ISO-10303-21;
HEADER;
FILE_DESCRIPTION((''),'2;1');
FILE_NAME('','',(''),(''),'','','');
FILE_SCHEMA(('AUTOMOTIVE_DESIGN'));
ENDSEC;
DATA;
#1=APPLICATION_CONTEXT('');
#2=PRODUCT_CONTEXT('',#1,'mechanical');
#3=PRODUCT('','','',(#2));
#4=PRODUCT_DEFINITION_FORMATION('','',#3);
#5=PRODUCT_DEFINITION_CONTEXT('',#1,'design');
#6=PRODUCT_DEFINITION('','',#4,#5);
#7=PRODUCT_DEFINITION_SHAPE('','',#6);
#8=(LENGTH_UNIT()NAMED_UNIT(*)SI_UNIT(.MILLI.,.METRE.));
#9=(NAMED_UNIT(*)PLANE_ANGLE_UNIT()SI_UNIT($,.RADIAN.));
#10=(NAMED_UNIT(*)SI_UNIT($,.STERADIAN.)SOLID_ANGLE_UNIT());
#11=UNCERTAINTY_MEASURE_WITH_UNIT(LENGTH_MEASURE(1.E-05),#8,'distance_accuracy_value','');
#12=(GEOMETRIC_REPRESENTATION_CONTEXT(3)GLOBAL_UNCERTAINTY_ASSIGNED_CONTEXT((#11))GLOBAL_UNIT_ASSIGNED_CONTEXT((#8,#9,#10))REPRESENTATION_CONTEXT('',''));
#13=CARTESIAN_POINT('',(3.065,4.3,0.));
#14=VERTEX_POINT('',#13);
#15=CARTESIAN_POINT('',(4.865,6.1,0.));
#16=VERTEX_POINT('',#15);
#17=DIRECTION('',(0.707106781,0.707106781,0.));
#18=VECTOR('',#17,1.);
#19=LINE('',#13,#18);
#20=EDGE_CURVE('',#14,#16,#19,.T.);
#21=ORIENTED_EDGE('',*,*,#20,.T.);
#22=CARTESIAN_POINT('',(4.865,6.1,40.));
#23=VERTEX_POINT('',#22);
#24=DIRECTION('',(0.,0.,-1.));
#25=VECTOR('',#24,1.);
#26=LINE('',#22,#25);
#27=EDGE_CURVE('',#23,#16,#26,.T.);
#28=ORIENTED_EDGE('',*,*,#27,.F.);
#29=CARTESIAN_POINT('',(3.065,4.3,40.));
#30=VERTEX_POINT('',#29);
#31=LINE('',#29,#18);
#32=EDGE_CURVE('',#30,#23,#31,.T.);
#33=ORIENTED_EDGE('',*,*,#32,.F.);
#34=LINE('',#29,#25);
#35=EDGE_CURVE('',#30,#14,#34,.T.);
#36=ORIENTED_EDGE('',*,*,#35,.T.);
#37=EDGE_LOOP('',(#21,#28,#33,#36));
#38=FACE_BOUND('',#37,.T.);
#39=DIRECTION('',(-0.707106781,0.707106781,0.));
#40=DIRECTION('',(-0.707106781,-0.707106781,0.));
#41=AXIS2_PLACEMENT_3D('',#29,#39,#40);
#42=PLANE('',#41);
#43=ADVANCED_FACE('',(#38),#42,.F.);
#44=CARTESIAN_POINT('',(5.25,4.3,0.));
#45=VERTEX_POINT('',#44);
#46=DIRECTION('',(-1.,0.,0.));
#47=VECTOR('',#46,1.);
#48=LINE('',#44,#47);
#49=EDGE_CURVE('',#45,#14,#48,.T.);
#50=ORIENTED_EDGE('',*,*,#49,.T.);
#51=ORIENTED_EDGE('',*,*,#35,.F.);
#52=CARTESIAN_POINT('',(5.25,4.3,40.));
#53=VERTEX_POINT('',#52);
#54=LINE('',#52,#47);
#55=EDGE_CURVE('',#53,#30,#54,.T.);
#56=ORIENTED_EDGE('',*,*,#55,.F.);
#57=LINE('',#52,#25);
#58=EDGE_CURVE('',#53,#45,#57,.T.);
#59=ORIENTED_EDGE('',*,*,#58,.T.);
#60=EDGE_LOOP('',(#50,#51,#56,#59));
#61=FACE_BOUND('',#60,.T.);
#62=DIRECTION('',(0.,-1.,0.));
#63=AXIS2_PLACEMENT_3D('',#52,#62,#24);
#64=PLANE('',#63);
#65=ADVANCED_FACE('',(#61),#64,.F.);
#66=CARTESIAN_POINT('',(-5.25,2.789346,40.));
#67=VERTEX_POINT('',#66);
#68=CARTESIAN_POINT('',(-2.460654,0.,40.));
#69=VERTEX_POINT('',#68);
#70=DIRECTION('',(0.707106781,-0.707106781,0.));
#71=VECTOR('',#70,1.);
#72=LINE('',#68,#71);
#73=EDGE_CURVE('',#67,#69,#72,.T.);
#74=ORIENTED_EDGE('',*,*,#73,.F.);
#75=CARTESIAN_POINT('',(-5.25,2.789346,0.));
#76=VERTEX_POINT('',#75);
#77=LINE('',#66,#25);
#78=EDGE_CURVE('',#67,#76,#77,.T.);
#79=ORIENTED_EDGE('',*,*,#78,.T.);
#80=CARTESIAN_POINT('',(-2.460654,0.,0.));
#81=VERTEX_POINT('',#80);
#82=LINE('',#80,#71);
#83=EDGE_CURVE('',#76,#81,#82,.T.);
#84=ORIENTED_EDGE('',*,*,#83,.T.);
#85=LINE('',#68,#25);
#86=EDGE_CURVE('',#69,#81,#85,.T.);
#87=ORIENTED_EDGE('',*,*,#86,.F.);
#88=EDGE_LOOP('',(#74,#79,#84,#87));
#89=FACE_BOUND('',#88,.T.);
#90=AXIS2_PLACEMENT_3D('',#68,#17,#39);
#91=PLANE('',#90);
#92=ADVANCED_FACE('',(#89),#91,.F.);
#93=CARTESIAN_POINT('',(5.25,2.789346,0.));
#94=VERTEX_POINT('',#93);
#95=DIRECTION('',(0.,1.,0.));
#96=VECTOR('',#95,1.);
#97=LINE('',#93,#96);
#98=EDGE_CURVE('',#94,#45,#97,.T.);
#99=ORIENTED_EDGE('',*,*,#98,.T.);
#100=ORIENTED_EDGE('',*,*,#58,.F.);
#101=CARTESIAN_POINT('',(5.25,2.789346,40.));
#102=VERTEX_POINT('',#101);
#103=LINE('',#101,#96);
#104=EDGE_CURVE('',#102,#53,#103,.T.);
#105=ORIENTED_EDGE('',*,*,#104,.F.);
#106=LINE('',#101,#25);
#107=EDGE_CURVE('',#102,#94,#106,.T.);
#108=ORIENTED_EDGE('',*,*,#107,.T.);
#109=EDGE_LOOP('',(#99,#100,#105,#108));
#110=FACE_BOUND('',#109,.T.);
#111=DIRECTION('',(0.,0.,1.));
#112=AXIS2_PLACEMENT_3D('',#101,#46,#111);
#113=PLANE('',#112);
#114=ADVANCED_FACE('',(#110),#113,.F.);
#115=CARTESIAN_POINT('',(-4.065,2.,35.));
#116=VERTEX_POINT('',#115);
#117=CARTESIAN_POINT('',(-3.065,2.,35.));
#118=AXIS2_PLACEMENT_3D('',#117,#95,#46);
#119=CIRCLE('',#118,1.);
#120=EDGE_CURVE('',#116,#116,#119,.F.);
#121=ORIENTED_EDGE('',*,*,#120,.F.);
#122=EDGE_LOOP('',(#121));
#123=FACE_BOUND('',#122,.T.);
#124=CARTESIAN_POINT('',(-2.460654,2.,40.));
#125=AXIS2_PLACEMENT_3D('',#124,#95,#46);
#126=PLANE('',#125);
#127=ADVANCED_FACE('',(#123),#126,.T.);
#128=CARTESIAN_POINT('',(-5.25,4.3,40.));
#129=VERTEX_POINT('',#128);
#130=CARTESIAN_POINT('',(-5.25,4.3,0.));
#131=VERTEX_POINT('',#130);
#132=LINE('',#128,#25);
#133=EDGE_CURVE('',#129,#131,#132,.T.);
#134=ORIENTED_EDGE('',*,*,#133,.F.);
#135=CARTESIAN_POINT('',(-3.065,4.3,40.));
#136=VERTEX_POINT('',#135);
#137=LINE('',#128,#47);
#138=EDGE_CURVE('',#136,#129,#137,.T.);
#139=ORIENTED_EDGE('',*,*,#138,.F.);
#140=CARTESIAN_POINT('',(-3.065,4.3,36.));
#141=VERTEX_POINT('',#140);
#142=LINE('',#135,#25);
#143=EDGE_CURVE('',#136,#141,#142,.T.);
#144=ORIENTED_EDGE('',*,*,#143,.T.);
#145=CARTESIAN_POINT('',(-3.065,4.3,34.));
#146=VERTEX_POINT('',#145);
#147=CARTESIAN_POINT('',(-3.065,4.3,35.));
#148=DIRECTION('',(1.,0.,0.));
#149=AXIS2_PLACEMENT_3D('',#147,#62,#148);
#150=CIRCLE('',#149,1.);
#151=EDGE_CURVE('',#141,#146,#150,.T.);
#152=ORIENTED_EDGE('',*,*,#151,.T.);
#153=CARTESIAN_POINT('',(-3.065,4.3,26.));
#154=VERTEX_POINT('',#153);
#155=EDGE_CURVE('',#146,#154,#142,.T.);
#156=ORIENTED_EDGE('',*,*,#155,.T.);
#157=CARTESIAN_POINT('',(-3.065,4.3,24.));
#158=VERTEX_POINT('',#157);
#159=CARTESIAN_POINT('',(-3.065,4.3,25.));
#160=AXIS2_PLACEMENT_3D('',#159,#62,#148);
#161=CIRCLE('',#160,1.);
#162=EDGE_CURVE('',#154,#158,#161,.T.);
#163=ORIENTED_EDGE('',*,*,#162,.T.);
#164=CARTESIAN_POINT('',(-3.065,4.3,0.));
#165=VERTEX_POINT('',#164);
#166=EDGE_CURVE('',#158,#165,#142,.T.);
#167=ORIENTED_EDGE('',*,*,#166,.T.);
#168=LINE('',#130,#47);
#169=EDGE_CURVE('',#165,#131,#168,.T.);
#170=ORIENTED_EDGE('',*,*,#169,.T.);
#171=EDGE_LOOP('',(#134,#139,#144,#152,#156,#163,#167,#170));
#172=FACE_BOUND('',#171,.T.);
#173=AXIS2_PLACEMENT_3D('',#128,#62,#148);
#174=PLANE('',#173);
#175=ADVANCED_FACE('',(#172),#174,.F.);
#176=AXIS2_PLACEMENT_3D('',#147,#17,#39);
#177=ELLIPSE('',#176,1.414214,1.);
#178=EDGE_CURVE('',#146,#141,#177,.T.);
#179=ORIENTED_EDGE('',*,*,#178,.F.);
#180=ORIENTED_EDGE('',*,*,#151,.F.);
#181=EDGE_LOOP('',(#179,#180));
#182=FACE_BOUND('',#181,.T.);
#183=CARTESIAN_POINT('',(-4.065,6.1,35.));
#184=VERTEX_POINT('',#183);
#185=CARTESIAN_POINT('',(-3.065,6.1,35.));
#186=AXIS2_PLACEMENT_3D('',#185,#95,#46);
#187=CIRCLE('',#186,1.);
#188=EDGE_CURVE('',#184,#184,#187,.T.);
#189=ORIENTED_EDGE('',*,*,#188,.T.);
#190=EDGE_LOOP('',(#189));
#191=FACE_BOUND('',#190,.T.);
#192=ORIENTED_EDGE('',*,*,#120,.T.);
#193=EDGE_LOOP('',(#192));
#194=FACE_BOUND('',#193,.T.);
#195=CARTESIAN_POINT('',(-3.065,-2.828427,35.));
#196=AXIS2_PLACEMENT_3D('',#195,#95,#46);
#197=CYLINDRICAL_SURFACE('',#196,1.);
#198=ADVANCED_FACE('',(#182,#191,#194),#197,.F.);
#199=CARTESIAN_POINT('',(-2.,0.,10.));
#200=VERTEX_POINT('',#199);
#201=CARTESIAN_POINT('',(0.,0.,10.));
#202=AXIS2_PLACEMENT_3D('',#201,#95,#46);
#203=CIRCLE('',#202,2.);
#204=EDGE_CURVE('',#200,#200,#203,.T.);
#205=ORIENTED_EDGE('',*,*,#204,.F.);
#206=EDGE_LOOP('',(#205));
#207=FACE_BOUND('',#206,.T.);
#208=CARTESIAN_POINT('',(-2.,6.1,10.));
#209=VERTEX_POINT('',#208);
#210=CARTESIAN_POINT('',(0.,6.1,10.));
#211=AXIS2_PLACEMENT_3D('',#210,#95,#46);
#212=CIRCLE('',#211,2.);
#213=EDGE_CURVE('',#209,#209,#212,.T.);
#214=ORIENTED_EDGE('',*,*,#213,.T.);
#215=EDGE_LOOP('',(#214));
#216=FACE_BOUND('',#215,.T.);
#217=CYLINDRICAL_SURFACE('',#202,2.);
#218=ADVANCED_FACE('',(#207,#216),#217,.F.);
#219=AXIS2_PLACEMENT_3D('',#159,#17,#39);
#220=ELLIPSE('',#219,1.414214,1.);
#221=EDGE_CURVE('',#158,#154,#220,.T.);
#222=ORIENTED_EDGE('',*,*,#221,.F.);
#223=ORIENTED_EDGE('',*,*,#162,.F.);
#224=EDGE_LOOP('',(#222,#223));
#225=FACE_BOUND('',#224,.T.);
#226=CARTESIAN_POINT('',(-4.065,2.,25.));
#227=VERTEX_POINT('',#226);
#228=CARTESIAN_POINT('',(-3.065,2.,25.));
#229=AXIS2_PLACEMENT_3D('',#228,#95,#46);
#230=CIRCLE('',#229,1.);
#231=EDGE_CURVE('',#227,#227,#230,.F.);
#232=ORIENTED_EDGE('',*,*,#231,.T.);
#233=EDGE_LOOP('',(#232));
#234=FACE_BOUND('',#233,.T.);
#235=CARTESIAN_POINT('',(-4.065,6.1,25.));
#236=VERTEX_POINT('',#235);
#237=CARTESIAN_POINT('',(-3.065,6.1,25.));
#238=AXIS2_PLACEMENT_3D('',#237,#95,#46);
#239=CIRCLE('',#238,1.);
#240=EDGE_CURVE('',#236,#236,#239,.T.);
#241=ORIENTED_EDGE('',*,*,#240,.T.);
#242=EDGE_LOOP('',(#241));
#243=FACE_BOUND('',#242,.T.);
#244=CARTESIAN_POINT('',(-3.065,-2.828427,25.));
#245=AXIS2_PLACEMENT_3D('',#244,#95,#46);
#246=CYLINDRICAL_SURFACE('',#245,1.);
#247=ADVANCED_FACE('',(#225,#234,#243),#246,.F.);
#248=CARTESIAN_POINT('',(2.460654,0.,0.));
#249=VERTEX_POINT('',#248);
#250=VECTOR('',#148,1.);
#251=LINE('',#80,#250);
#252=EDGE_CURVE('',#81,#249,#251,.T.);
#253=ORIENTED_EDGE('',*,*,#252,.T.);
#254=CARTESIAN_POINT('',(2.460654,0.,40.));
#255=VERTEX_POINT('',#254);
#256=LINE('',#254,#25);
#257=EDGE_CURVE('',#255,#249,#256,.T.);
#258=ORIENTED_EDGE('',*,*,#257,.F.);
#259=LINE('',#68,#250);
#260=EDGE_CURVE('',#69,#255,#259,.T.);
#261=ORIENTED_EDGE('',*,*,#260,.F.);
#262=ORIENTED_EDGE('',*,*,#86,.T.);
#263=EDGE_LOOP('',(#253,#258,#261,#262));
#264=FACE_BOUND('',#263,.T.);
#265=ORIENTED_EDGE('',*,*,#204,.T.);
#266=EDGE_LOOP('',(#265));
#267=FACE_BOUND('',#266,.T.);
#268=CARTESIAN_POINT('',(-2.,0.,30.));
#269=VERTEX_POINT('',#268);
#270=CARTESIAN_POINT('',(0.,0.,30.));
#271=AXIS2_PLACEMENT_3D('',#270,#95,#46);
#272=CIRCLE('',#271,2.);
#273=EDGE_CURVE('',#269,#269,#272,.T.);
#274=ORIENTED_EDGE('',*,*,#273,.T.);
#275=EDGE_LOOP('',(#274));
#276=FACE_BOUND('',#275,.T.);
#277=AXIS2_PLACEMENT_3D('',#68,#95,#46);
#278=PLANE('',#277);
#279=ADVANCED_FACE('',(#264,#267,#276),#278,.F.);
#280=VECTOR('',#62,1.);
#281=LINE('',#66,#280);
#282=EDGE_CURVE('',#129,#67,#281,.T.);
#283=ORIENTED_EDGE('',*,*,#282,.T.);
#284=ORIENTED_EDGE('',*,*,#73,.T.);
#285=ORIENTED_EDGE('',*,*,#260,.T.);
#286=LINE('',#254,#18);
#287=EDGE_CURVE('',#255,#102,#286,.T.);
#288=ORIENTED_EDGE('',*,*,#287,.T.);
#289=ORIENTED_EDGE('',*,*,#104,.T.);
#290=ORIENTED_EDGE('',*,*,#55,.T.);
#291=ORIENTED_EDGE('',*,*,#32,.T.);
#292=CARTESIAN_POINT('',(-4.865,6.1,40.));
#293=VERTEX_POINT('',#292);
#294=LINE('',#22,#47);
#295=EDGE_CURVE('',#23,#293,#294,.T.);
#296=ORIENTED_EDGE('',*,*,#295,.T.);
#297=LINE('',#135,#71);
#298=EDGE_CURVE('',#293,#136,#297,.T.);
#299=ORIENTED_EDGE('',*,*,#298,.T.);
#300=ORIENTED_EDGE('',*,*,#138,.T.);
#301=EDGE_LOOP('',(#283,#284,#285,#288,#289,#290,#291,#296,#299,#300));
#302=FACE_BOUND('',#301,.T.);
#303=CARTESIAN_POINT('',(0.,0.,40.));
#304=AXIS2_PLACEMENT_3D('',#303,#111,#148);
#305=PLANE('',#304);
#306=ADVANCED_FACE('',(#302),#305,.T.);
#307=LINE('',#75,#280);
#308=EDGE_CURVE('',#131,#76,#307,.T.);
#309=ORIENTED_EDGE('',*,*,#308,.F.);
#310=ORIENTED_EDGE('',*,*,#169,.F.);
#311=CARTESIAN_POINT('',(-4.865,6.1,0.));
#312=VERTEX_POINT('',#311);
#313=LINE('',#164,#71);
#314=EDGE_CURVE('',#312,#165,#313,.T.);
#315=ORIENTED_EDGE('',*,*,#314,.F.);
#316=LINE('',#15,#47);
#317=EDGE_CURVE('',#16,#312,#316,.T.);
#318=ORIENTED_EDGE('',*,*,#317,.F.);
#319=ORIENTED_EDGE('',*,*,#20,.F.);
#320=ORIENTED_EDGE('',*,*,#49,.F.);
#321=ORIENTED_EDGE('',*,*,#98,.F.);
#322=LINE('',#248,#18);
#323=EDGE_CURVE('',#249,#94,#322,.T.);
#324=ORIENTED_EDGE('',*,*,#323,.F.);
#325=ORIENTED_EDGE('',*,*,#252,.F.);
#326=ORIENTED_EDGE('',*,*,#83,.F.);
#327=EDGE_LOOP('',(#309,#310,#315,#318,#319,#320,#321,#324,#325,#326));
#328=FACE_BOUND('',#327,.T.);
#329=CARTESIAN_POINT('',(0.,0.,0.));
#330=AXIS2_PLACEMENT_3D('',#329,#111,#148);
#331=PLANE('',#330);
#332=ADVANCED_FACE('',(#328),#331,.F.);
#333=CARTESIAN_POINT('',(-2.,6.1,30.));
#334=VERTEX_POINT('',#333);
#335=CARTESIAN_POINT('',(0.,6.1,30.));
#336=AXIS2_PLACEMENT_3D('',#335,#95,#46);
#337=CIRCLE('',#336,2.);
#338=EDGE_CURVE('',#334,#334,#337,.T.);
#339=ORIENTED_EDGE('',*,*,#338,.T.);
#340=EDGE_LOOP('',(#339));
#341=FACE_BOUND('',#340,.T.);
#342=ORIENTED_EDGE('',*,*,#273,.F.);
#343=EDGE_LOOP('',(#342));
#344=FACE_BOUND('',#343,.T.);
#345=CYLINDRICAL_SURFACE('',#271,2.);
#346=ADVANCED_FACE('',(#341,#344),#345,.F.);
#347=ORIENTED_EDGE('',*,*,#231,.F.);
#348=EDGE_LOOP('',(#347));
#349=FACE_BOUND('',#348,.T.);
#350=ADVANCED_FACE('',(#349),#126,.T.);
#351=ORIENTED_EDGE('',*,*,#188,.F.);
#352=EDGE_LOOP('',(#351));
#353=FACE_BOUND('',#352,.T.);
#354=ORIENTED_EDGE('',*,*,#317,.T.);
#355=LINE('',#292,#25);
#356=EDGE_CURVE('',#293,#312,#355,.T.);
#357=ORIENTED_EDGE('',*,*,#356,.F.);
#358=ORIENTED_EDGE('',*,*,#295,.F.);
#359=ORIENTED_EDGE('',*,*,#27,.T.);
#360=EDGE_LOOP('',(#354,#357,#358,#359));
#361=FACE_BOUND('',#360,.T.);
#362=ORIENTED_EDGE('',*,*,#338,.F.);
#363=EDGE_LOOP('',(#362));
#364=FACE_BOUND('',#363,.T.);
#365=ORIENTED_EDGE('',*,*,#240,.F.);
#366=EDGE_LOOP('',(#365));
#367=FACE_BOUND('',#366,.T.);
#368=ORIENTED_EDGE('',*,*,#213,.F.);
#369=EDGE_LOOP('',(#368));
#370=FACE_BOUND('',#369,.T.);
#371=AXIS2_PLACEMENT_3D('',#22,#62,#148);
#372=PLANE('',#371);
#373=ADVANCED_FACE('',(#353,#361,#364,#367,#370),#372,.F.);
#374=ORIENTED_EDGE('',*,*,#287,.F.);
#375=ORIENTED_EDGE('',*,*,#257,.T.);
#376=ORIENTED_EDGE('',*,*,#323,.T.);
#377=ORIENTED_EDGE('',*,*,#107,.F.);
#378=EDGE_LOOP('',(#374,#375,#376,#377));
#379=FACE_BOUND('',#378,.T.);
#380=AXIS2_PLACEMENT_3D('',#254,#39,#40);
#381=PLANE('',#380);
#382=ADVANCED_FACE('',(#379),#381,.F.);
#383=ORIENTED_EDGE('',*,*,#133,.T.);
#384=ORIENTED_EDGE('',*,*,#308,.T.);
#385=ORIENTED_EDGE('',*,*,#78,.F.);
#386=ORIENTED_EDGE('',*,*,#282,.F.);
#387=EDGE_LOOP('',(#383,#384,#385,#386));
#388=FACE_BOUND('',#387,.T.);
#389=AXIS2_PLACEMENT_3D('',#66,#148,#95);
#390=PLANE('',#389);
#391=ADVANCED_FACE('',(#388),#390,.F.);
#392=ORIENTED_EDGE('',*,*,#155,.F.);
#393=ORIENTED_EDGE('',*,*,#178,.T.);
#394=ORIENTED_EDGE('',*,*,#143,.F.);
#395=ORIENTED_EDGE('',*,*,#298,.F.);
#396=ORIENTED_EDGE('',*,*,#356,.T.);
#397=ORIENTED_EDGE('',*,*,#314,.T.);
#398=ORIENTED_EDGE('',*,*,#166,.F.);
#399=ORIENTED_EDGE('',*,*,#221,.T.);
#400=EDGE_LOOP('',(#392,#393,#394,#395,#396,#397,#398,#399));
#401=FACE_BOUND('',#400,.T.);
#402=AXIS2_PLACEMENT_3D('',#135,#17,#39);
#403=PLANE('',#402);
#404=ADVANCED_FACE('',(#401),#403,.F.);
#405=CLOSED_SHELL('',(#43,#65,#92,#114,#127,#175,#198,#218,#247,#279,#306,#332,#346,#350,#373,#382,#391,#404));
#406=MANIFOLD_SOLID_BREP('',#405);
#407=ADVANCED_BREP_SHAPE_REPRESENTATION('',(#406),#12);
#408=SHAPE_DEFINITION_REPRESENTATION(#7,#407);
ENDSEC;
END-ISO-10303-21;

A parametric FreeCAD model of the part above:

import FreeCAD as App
import Part
import Sketcher

V = App.Vector
Q = App.Units.Quantity


def add_polygon(sketch, points):
    """Adds a closed chain of lines whose ends are joined by coincident constraints."""
    first, n = sketch.GeometryCount, len(points)
    for a, b in zip(points, points[1:] + points[:1]):
        sketch.addGeometry(Part.LineSegment(App.Vector(*a, 0), App.Vector(*b, 0)), False)
    for i in range(n):
        sketch.addConstraint(Sketcher.Constraint("Coincident", first + i, 2, first + (i + 1) % n, 1))

doc = App.newDocument("Part")
params = doc.addObject("Spreadsheet::Sheet", "Params")
for row, (alias, value) in enumerate([
    ("sketch1_width", "9.73 mm"),
    ("pad1_length", "40 mm"),
    ("sketch2_diameter", "4 mm"),
    ("sketch3_diameter", "2 mm"),
    ("pocket2_length", "4.1 mm"),
], start=1):
    params.set(f"A{row}", alias)
    params.set(f"B{row}", "=" + value)
    params.setAlias(f"B{row}", alias)

body = doc.addObject("PartDesign::Body", "Body")

sketch1 = body.newObject("Sketcher::SketchObject", "Sketch")
sketch1.AttachmentSupport = (doc.getObject("XY_Plane"), [""])
sketch1.MapMode = "FlatFace"
add_polygon(sketch1, [(-2.460654, 0), (2.460654, 0), (5.25, 2.789346), (5.25, 4.3), (3.065, 4.3), (4.865, 6.1), (-4.865, 6.1), (-3.065, 4.3), (-5.25, 4.3), (-5.25, 2.789346)])
sketch1.addConstraint([
    Sketcher.Constraint("Horizontal", 0),
    Sketcher.Constraint("Vertical", 2),
    Sketcher.Constraint("Horizontal", 3),
    Sketcher.Constraint("Horizontal", 5),
    Sketcher.Constraint("Horizontal", 7),
    Sketcher.Constraint("Vertical", 8),
    Sketcher.Constraint("Symmetric", 0, 2, 9, 2, -1, 1),
    Sketcher.Constraint("Symmetric", 3, 2, 6, 2, -2),
    Sketcher.Constraint("Symmetric", 1, 2, 8, 2, -2),
    Sketcher.Constraint("Parallel", 1, 4),
    Sketcher.Constraint("Perpendicular", 4, 6),
    Sketcher.Constraint("Parallel", 6, 9),
    Sketcher.Constraint("DistanceX", 5, 2, 5, 1, Q("9.73 mm")),
    Sketcher.Constraint("DistanceY", -1, 1, 2, 2, Q("4.3 mm")),
    Sketcher.Constraint("DistanceY", -1, 1, 4, 2, Q("6.1 mm")),
    Sketcher.Constraint("DistanceX", 3, 2, 3, 1, Q("2.185 mm")),
    Sketcher.Constraint("Distance", 1, Q("3.944732 mm")),
])
sketch1.setExpression("Constraints[22]", "Params.sketch1_width")
pad1 = body.newObject("PartDesign::Pad", "Pad")
pad1.Profile = sketch1
pad1.setExpression("Length", "Params.pad1_length")

sketch2 = body.newObject("Sketcher::SketchObject", "Sketch001")
sketch2.AttachmentSupport = (doc.getObject("XZ_Plane"), [""])
sketch2.MapMode = "FlatFace"
sketch2.AttachmentOffset = App.Placement(V(0, 0, -6.1), App.Rotation())
sketch2.addGeometry([
    Part.Circle(V(0, 30, 0), V(0, 0, 1), 2),
    Part.Circle(V(0, 10, 0), V(0, 0, 1), 2),
], False)
sketch2.addConstraint([
    Sketcher.Constraint("Equal", 0, 1),
    Sketcher.Constraint("PointOnObject", 0, 3, -2),
    Sketcher.Constraint("PointOnObject", 1, 3, -2),
    Sketcher.Constraint("Diameter", 0, Q("4 mm")),
    Sketcher.Constraint("DistanceY", -1, 1, 0, 3, Q("30 mm")),
    Sketcher.Constraint("DistanceY", -1, 1, 1, 3, Q("10 mm")),
])
sketch2.setExpression("Constraints[3]", "Params.sketch2_diameter")
pocket1 = body.newObject("PartDesign::Pocket", "Pocket")
pocket1.Profile = sketch2
pocket1.Type = "ThroughAll"
pocket1.Reversed = True

sketch3 = body.newObject("Sketcher::SketchObject", "Sketch002")
sketch3.AttachmentSupport = (doc.getObject("XZ_Plane"), [""])
sketch3.MapMode = "FlatFace"
sketch3.AttachmentOffset = App.Placement(V(0, 0, -6.1), App.Rotation())
sketch3.addGeometry([
    Part.Circle(V(-3.065, 35, 0), V(0, 0, 1), 1),
    Part.Circle(V(-3.065, 25, 0), V(0, 0, 1), 1),
], False)
sketch3.addConstraint([
    Sketcher.Constraint("Equal", 0, 1),
    Sketcher.Constraint("Vertical", 0, 3, 1, 3),
    Sketcher.Constraint("Diameter", 0, Q("2 mm")),
    Sketcher.Constraint("DistanceY", -1, 1, 0, 3, Q("35 mm")),
    Sketcher.Constraint("DistanceY", -1, 1, 1, 3, Q("25 mm")),
    Sketcher.Constraint("DistanceX", 0, 3, -1, 1, Q("3.065 mm")),
])
sketch3.setExpression("Constraints[2]", "Params.sketch3_diameter")
pocket2 = body.newObject("PartDesign::Pocket", "Pocket001")
pocket2.Profile = sketch3
pocket2.setExpression("Length", "Params.pocket2_length")
pocket2.Reversed = True

doc.recompute()
